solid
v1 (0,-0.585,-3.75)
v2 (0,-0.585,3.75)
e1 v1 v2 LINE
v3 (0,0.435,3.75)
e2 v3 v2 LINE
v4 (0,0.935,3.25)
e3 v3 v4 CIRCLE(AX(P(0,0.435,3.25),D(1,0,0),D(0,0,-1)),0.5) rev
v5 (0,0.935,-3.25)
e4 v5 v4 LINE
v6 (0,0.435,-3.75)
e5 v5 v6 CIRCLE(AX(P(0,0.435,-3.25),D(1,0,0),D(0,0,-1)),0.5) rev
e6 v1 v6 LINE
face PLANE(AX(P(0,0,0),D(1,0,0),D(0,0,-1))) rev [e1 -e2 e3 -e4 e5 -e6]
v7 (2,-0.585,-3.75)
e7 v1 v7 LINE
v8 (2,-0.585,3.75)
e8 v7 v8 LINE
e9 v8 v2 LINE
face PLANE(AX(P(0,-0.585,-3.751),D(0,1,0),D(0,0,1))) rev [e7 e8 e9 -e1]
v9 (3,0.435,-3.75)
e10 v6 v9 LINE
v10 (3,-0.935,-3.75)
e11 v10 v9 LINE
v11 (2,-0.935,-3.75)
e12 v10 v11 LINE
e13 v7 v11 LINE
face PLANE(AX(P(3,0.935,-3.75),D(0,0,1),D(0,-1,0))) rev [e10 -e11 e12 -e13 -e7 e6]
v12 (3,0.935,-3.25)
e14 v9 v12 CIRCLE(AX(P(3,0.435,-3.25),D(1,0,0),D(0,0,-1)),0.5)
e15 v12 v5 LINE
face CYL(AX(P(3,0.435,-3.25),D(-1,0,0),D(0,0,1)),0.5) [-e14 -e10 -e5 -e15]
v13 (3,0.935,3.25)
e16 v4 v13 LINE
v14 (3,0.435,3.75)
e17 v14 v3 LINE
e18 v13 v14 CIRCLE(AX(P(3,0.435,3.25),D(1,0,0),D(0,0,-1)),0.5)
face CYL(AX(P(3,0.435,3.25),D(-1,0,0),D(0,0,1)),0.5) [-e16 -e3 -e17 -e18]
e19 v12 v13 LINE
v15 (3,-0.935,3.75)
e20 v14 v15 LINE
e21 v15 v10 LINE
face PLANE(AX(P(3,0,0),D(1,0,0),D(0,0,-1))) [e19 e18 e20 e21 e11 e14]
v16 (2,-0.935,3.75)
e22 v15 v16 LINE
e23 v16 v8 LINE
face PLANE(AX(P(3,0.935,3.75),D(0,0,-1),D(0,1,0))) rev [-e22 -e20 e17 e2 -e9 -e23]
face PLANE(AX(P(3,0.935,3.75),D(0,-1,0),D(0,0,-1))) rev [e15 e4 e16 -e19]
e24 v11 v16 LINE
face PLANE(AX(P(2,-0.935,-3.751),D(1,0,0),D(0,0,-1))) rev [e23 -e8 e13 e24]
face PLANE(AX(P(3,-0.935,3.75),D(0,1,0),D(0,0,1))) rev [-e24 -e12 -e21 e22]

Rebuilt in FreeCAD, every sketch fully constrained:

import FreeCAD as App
import Part
import Sketcher
Q = App.Units.Quantity


def edges_at(feature, points):
    """Names of the edges that pass closest to the given points."""
    edges = feature.Shape.Edges
    near = lambda p: min(range(len(edges)), key=lambda i: edges[i].distToShape(Part.Vertex(*p))[0])
    return sorted({f"Edge{near(p) + 1}" for p in points})

doc = App.newDocument("Part")
params = doc.addObject("Spreadsheet::Sheet", "Params")
for row, (alias, value) in enumerate([
    ("sketch1_height", "7.5 mm"),
    ("sketch1_width", "1.87 mm"),
    ("pad1_length", "3 mm"),
    ("sketch2_width", "2 mm"),
    ("sketch2_height", "0.35 mm"),
    ("fillet_radius", "0.5 mm"),
], start=1):
    params.set(f"A{row}", alias)
    params.set(f"B{row}", "=" + value)
    params.setAlias(f"B{row}", alias)

body = doc.addObject("PartDesign::Body", "Body")

# Sketch on YZ plane
sketch1 = body.newObject("Sketcher::SketchObject", "Sketch")
sketch1.AttachmentSupport = (doc.getObject("YZ_Plane"), [""])
sketch1.MapMode = "FlatFace"
sketch1.addGeometry([
    Part.LineSegment(App.Vector(0.935, 3.75, 0), App.Vector(-0.935, 3.75, 0)),
    Part.LineSegment(App.Vector(-0.935, 3.75, 0), App.Vector(-0.935, -3.75, 0)),
    Part.LineSegment(App.Vector(-0.935, -3.75, 0), App.Vector(0.935, -3.75, 0)),
    Part.LineSegment(App.Vector(0.935, -3.75, 0), App.Vector(0.935, 3.75, 0)),
], False)
sketch1.addConstraint([
    Sketcher.Constraint("Coincident", 0, 2, 1, 1),
    Sketcher.Constraint("Coincident", 1, 2, 2, 1),
    Sketcher.Constraint("Coincident", 2, 2, 3, 1),
    Sketcher.Constraint("Coincident", 3, 2, 0, 1),
    Sketcher.Constraint("Horizontal", 0),
    Sketcher.Constraint("Vertical", 1),
    Sketcher.Constraint("Horizontal", 2),
    Sketcher.Constraint("Vertical", 3),
    Sketcher.Constraint("Symmetric", 0, 2, 2, 2, -1, 1),
    Sketcher.Constraint("DistanceY", 1, 2, 1, 1, Q("7.5 mm")),
    Sketcher.Constraint("DistanceX", 0, 2, 0, 1, Q("1.87 mm")),
])
sketch1.setExpression("Constraints[9]", "Params.sketch1_height")
sketch1.setExpression("Constraints[10]", "Params.sketch1_width")
pad1 = body.newObject("PartDesign::Pad", "Pad")
pad1.Profile = sketch1
pad1.setExpression("Length", "Params.pad1_length")

# Sketch on XY plane
sketch2 = body.newObject("Sketcher::SketchObject", "Sketch001")
sketch2.AttachmentSupport = (doc.getObject("XY_Plane"), [""])
sketch2.MapMode = "FlatFace"
sketch2.AttachmentOffset = App.Placement(App.Vector(0, 0, 3.75), App.Rotation())
sketch2.addGeometry([
    Part.LineSegment(App.Vector(0, -0.585, 0), App.Vector(0, -0.935, 0)),
    Part.LineSegment(App.Vector(0, -0.935, 0), App.Vector(2, -0.935, 0)),
    Part.LineSegment(App.Vector(2, -0.935, 0), App.Vector(2, -0.585, 0)),
    Part.LineSegment(App.Vector(2, -0.585, 0), App.Vector(0, -0.585, 0)),
], False)
sketch2.addConstraint([
    Sketcher.Constraint("Coincident", 0, 2, 1, 1),
    Sketcher.Constraint("Coincident", 1, 2, 2, 1),
    Sketcher.Constraint("Coincident", 2, 2, 3, 1),
    Sketcher.Constraint("Coincident", 3, 2, 0, 1),
    Sketcher.Constraint("Vertical", 0),
    Sketcher.Constraint("Horizontal", 1),
    Sketcher.Constraint("Vertical", 2),
    Sketcher.Constraint("Horizontal", 3),
    Sketcher.Constraint("PointOnObject", 0, 2, -2),
    Sketcher.Constraint("DistanceX", 1, 1, 1, 2, Q("2 mm")),
    Sketcher.Constraint("DistanceY", 0, 2, 0, 1, Q("0.35 mm")),
    Sketcher.Constraint("DistanceY", 0, 2, -1, 1, Q("0.935 mm")),
])
sketch2.setExpression("Constraints[9]", "Params.sketch2_width")
sketch2.setExpression("Constraints[10]", "Params.sketch2_height")
pocket1 = body.newObject("PartDesign::Pocket", "Pocket")
pocket1.Profile = sketch2
pocket1.Type = "UpToFirst"
doc.recompute()

fillet = body.newObject("PartDesign::Fillet", "Fillet")
fillet.Base = (pocket1, edges_at(pocket1, [(1.5, 0.935, 3.75), (1.5, 0.935, -3.75)]))
fillet.setExpression("Radius", "Params.fillet_radius")

doc.recompute()
